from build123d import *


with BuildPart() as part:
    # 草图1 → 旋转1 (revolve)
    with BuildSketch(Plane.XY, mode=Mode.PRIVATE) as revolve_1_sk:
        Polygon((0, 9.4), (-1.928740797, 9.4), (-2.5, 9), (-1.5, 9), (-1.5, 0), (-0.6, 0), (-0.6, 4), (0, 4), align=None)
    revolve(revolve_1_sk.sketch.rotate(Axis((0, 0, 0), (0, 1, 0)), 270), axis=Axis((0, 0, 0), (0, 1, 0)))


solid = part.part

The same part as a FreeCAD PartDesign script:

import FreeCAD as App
import Part
import Sketcher
from FreeCAD import Vector
Q = App.Units.Quantity

doc = App.newDocument("Part")
body = doc.addObject("PartDesign::Body", "Body")

sketch1 = body.newObject("Sketcher::SketchObject", "Sketch")
sketch1.AttachmentSupport = (doc.getObject("XY_Plane"), [""])
sketch1.MapMode = "FlatFace"
sketch1.addGeometry(Part.LineSegment(Vector(0, 9.4, 0), Vector(-1.928741, 9.4, 0)), False)
sketch1.addGeometry(Part.LineSegment(Vector(-1.928741, 9.4, 0), Vector(-2.5, 9, 0)), False)
sketch1.addGeometry(Part.LineSegment(Vector(-2.5, 9, 0), Vector(-1.5, 9, 0)), False)
sketch1.addGeometry(Part.LineSegment(Vector(-1.5, 9, 0), Vector(-1.5, 0, 0)), False)
sketch1.addGeometry(Part.LineSegment(Vector(-1.5, 0, 0), Vector(-0.6, 0, 0)), False)
sketch1.addGeometry(Part.LineSegment(Vector(-0.6, 0, 0), Vector(-0.6, 4, 0)), False)
sketch1.addGeometry(Part.LineSegment(Vector(-0.6, 4, 0), Vector(0, 4, 0)), False)
sketch1.addGeometry(Part.LineSegment(Vector(0, 4, 0), Vector(0, 9.4, 0)), False)
sketch1.addConstraint(Sketcher.Constraint("Coincident", 0, 2, 1, 1))
sketch1.addConstraint(Sketcher.Constraint("Coincident", 1, 2, 2, 1))
sketch1.addConstraint(Sketcher.Constraint("Coincident", 2, 2, 3, 1))
sketch1.addConstraint(Sketcher.Constraint("Coincident", 3, 2, 4, 1))
sketch1.addConstraint(Sketcher.Constraint("Coincident", 4, 2, 5, 1))
sketch1.addConstraint(Sketcher.Constraint("Coincident", 5, 2, 6, 1))
sketch1.addConstraint(Sketcher.Constraint("Coincident", 6, 2, 7, 1))
sketch1.addConstraint(Sketcher.Constraint("Coincident", 7, 2, 0, 1))
sketch1.addConstraint(Sketcher.Constraint("Horizontal", 0))
sketch1.addConstraint(Sketcher.Constraint("Horizontal", 2))
sketch1.addConstraint(Sketcher.Constraint("Vertical", 3))
sketch1.addConstraint(Sketcher.Constraint("Horizontal", 4))
sketch1.addConstraint(Sketcher.Constraint("Vertical", 5))
sketch1.addConstraint(Sketcher.Constraint("Horizontal", 6))
sketch1.addConstraint(Sketcher.Constraint("Vertical", 7))
sketch1.addConstraint(Sketcher.Constraint("PointOnObject", 3, 2, -1))
sketch1.addConstraint(Sketcher.Constraint("PointOnObject", 6, 2, -2))
sketch1.addConstraint(Sketcher.Constraint("DistanceX", 2, 1, 2, 2, Q("1 mm")))
sketch1.addConstraint(Sketcher.Constraint("DistanceY", 3, 2, 3, 1, Q("9 mm")))
sketch1.addConstraint(Sketcher.Constraint("DistanceY", 5, 1, 5, 2, Q("4 mm")))
sketch1.addConstraint(Sketcher.Constraint("Angle", 1, Q("-145 deg")))
sketch1.addConstraint(Sketcher.Constraint("DistanceX", 4, 1, 4, 2, Q("0.9 mm")))
sketch1.addConstraint(Sketcher.Constraint("DistanceX", 6, 1, 6, 2, Q("0.6 mm")))
sketch1.addConstraint(Sketcher.Constraint("DistanceY", 7, 1, 7, 2, Q("5.4 mm")))
revolution = body.newObject("PartDesign::Revolution", "Revolution")
revolution.Profile = sketch1
revolution.ReferenceAxis = (sketch1, ["V_Axis"])
revolution.Angle = 360

doc.recompute()
